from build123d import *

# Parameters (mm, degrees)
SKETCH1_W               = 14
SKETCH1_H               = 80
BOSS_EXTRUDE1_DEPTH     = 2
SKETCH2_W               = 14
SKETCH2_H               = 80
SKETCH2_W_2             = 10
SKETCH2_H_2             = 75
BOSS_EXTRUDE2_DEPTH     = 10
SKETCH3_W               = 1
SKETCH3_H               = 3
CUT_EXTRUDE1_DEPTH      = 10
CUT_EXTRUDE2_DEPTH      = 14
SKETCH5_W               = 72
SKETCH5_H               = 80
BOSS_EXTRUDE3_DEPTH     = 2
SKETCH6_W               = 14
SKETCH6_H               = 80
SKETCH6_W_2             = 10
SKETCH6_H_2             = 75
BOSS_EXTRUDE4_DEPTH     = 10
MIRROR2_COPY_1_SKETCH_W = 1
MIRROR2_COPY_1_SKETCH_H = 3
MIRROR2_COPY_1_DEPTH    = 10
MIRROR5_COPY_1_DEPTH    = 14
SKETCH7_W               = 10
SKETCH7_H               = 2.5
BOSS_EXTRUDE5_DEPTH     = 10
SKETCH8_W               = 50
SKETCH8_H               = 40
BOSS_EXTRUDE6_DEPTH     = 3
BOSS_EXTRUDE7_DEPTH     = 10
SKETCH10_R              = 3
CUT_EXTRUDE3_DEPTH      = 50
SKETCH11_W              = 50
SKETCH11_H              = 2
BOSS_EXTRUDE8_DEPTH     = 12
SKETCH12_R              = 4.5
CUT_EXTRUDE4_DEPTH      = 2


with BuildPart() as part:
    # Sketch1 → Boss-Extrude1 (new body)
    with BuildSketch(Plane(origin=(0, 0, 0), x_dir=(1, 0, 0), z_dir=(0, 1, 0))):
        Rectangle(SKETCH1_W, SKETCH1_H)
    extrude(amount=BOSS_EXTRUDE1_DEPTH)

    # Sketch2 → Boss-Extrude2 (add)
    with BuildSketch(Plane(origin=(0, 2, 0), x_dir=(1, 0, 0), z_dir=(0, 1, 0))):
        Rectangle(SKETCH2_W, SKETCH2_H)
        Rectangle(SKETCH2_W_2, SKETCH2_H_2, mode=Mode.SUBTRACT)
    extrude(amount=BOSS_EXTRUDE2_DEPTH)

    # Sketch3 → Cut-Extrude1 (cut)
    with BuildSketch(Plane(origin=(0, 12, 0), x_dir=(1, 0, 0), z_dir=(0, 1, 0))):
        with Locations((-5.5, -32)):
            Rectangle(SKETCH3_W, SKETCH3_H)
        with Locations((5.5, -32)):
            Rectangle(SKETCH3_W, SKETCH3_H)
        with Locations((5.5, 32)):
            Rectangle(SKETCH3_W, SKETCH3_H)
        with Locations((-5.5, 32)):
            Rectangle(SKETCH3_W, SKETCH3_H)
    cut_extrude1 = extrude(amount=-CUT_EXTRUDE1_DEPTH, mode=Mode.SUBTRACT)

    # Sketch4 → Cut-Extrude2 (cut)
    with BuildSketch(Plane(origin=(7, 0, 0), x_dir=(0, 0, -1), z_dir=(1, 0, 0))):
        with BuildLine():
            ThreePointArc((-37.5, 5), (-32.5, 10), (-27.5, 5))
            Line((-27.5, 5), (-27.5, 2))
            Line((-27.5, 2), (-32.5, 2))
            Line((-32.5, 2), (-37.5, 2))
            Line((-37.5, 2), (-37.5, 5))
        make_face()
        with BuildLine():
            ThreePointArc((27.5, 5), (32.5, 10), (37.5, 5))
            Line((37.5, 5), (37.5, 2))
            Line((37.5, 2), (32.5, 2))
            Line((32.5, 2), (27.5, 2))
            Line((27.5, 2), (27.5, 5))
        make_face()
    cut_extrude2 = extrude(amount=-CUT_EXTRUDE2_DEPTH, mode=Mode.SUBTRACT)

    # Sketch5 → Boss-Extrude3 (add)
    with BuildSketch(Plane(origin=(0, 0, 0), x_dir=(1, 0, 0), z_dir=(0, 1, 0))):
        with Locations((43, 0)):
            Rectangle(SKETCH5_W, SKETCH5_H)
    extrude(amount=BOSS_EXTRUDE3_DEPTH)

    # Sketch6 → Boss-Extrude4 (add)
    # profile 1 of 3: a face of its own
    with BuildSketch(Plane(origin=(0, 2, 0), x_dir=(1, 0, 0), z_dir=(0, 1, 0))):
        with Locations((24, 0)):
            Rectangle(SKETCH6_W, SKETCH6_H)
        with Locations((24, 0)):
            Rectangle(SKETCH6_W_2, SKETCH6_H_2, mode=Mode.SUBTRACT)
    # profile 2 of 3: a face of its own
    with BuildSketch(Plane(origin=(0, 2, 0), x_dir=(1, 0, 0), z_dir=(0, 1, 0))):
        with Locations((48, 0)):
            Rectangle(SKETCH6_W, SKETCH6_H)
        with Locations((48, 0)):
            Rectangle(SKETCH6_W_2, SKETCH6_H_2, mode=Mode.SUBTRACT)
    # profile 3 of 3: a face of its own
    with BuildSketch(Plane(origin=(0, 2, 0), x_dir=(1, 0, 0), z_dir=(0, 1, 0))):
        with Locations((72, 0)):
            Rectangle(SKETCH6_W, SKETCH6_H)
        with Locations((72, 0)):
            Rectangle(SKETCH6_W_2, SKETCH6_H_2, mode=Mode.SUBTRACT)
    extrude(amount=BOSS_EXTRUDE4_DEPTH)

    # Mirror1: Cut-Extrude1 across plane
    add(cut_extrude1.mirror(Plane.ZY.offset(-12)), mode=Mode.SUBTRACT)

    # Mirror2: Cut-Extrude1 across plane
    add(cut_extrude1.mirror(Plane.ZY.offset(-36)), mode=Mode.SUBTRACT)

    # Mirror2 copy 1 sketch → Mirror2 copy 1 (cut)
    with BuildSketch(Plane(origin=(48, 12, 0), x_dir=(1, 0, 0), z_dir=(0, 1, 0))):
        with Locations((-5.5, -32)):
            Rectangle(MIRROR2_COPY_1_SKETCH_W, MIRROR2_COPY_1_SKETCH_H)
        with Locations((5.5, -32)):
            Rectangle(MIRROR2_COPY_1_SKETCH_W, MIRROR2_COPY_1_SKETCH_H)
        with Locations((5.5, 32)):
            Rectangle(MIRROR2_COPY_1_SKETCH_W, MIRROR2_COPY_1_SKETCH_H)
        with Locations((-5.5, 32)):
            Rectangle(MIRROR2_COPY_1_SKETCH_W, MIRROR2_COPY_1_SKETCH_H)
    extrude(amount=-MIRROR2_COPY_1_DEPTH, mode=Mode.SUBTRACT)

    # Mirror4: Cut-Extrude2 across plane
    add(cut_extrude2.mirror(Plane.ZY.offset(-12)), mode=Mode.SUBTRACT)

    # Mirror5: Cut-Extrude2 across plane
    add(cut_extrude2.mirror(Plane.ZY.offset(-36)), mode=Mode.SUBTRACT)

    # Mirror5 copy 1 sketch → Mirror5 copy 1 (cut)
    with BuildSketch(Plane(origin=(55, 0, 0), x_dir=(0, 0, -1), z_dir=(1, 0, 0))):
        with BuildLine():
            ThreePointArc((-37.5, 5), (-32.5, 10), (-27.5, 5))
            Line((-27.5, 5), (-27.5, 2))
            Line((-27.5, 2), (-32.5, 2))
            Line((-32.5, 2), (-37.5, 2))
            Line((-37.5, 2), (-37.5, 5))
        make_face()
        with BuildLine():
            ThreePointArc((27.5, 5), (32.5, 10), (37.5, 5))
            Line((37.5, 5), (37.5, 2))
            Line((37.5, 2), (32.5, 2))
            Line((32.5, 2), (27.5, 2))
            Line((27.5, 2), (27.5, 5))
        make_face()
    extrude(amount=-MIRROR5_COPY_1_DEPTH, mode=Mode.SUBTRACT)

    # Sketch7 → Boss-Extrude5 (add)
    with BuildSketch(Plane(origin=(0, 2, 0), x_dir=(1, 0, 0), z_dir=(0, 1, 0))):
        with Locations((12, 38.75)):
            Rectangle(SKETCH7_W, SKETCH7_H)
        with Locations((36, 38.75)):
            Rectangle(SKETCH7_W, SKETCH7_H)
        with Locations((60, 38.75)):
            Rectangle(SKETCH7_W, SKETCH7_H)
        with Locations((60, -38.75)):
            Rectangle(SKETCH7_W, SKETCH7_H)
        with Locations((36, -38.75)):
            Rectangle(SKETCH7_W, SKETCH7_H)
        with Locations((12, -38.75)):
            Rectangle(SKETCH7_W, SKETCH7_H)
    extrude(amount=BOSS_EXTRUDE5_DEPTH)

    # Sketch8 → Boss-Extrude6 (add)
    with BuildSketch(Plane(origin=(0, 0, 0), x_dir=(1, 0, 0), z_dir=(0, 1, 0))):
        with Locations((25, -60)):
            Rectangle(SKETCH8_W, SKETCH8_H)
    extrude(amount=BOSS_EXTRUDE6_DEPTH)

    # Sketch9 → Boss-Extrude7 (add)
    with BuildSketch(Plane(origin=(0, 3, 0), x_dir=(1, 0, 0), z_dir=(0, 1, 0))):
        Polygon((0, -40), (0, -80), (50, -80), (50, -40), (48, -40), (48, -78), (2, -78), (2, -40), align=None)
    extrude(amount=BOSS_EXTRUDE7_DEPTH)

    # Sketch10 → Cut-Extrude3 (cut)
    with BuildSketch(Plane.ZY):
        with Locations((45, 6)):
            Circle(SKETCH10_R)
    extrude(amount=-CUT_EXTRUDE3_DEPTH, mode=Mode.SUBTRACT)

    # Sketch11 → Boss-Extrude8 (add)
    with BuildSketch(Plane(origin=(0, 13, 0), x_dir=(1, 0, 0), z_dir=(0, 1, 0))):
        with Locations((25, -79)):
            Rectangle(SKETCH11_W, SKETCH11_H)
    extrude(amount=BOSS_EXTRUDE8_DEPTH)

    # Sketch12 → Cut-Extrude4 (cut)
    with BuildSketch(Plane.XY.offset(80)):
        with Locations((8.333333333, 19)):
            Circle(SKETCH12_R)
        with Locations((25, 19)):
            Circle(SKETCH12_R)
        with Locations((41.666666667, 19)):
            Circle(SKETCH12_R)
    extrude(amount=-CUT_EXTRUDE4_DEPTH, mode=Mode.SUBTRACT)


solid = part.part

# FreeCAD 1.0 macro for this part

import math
import FreeCAD as App
import Part
import Sketcher

V = App.Vector

doc = App.newDocument("Part")
body = doc.addObject("PartDesign::Body", "Body")

sketch1 = body.newObject("Sketcher::SketchObject", "Sketch")
sketch1.AttachmentSupport = (doc.getObject("XZ_Plane"), [""])
sketch1.MapMode = "FlatFace"
sketch1.addGeometry([
    Part.LineSegment(V(-7, -40, 0), V(-7, 40, 0)),
    Part.LineSegment(V(-7, 40, 0), V(7, 40, 0)),
    Part.LineSegment(V(7, 40, 0), V(7, -40, 0)),
    Part.LineSegment(V(7, -40, 0), V(-7, -40, 0)),
], False)
sketch1.addConstraint([
    Sketcher.Constraint("Coincident", 0, 2, 1, 1),
    Sketcher.Constraint("Coincident", 1, 2, 2, 1),
    Sketcher.Constraint("Coincident", 2, 2, 3, 1),
    Sketcher.Constraint("Coincident", 3, 2, 0, 1),
    Sketcher.Constraint("Vertical", 0),
    Sketcher.Constraint("Horizontal", 1),
    Sketcher.Constraint("Vertical", 2),
    Sketcher.Constraint("Horizontal", 3),
    Sketcher.Constraint("Symmetric", 0, 2, 2, 2, -1, 1),
    Sketcher.Constraint("DistanceX", 1, 1, 1, 2, 14.0),
    Sketcher.Constraint("DistanceY", 0, 1, 0, 2, 80.0),
])
pad1 = body.newObject("PartDesign::Pad", "Pad")
pad1.Profile = sketch1
pad1.Length = 2
pad1.Reversed = True

sketch2 = body.newObject("Sketcher::SketchObject", "Sketch001")
sketch2.AttachmentSupport = (doc.getObject("XZ_Plane"), [""])
sketch2.MapMode = "FlatFace"
sketch2.AttachmentOffset = App.Placement(V(0, 0, -2), App.Rotation())
sketch2.addGeometry([
    Part.LineSegment(V(-7, -40, 0), V(-7, 40, 0)),
    Part.LineSegment(V(-7, 40, 0), V(7, 40, 0)),
    Part.LineSegment(V(7, 40, 0), V(7, -40, 0)),
    Part.LineSegment(V(7, -40, 0), V(-7, -40, 0)),
    Part.LineSegment(V(5, 38, 0), V(-5, 38, 0)),
    Part.LineSegment(V(-5, 38, 0), V(-5, -38, 0)),
    Part.LineSegment(V(-5, -38, 0), V(5, -38, 0)),
    Part.LineSegment(V(5, -38, 0), V(5, 38, 0)),
], False)
sketch2.addConstraint([
    Sketcher.Constraint("Coincident", 0, 2, 1, 1),
    Sketcher.Constraint("Coincident", 1, 2, 2, 1),
    Sketcher.Constraint("Coincident", 2, 2, 3, 1),
    Sketcher.Constraint("Coincident", 3, 2, 0, 1),
    Sketcher.Constraint("Coincident", 4, 2, 5, 1),
    Sketcher.Constraint("Coincident", 5, 2, 6, 1),
    Sketcher.Constraint("Coincident", 6, 2, 7, 1),
    Sketcher.Constraint("Coincident", 7, 2, 4, 1),
    Sketcher.Constraint("Vertical", 0),
    Sketcher.Constraint("Horizontal", 1),
    Sketcher.Constraint("Vertical", 2),
    Sketcher.Constraint("Horizontal", 3),
    Sketcher.Constraint("Horizontal", 4),
    Sketcher.Constraint("Vertical", 5),
    Sketcher.Constraint("Horizontal", 6),
    Sketcher.Constraint("Vertical", 7),
    Sketcher.Constraint("Symmetric", 0, 2, 2, 2, -1, 1),
    Sketcher.Constraint("Symmetric", 4, 2, 6, 2, -1, 1),
    Sketcher.Constraint("DistanceX", 1, 1, 1, 2, 14.0),
    Sketcher.Constraint("DistanceX", 4, 2, 4, 1, 10.0),
    Sketcher.Constraint("DistanceY", 0, 1, 0, 2, 80.0),
    Sketcher.Constraint("DistanceY", 5, 2, 5, 1, 75.0),
])
pad2 = body.newObject("PartDesign::Pad", "Pad001")
pad2.Profile = sketch2
pad2.Length = 10
pad2.Reversed = True

sketch3 = body.newObject("Sketcher::SketchObject", "Sketch002")
sketch3.AttachmentSupport = (doc.getObject("XZ_Plane"), [""])
sketch3.MapMode = "FlatFace"
sketch3.AttachmentOffset = App.Placement(V(0, 0, -12), App.Rotation())
sketch3.addGeometry([
    Part.LineSegment(V(-6, 30.5, 0), V(-6, 33.5, 0)),
    Part.LineSegment(V(-6, 33.5, 0), V(-5, 33.5, 0)),
    Part.LineSegment(V(-5, 33.5, 0), V(-5, 30.5, 0)),
    Part.LineSegment(V(-5, 30.5, 0), V(-6, 30.5, 0)),
    Part.LineSegment(V(5, 30.5, 0), V(5, 33.5, 0)),
    Part.LineSegment(V(5, 33.5, 0), V(6, 33.5, 0)),
    Part.LineSegment(V(6, 33.5, 0), V(6, 30.5, 0)),
    Part.LineSegment(V(6, 30.5, 0), V(5, 30.5, 0)),
    Part.LineSegment(V(5, -33.5, 0), V(5, -30.5, 0)),
    Part.LineSegment(V(5, -30.5, 0), V(6, -30.5, 0)),
    Part.LineSegment(V(6, -30.5, 0), V(6, -33.5, 0)),
    Part.LineSegment(V(6, -33.5, 0), V(5, -33.5, 0)),
    Part.LineSegment(V(-6, -33.5, 0), V(-6, -30.5, 0)),
    Part.LineSegment(V(-6, -30.5, 0), V(-5, -30.5, 0)),
    Part.LineSegment(V(-5, -30.5, 0), V(-5, -33.5, 0)),
    Part.LineSegment(V(-5, -33.5, 0), V(-6, -33.5, 0)),
], False)
sketch3.addConstraint([
    Sketcher.Constraint("Coincident", 0, 2, 1, 1),
    Sketcher.Constraint("Coincident", 1, 2, 2, 1),
    Sketcher.Constraint("Coincident", 2, 2, 3, 1),
    Sketcher.Constraint("Coincident", 3, 2, 0, 1),
    Sketcher.Constraint("Coincident", 4, 2, 5, 1),
    Sketcher.Constraint("Coincident", 5, 2, 6, 1),
    Sketcher.Constraint("Coincident", 6, 2, 7, 1),
    Sketcher.Constraint("Coincident", 7, 2, 4, 1),
    Sketcher.Constraint("Coincident", 8, 2, 9, 1),
    Sketcher.Constraint("Coincident", 9, 2, 10, 1),
    Sketcher.Constraint("Coincident", 10, 2, 11, 1),
    Sketcher.Constraint("Coincident", 11, 2, 8, 1),
    Sketcher.Constraint("Coincident", 12, 2, 13, 1),
    Sketcher.Constraint("Coincident", 13, 2, 14, 1),
    Sketcher.Constraint("Coincident", 14, 2, 15, 1),
    Sketcher.Constraint("Coincident", 15, 2, 12, 1),
    Sketcher.Constraint("Vertical", 0),
    Sketcher.Constraint("Horizontal", 1),
    Sketcher.Constraint("Vertical", 2),
    Sketcher.Constraint("Horizontal", 3),
    Sketcher.Constraint("Vertical", 4),
    Sketcher.Constraint("Horizontal", 5),
    Sketcher.Constraint("Vertical", 6),
    Sketcher.Constraint("Horizontal", 7),
    Sketcher.Constraint("Vertical", 8),
    Sketcher.Constraint("Horizontal", 9),
    Sketcher.Constraint("Vertical", 10),
    Sketcher.Constraint("Horizontal", 11),
    Sketcher.Constraint("Vertical", 12),
    Sketcher.Constraint("Horizontal", 13),
    Sketcher.Constraint("Vertical", 14),
    Sketcher.Constraint("Horizontal", 15),
    Sketcher.Constraint("Symmetric", 2, 2, 8, 2, -1, 1),
    Sketcher.Constraint("Symmetric", 0, 2, 10, 2, -1, 1),
    Sketcher.Constraint("Symmetric", 6, 2, 12, 2, -1, 1),
    Sketcher.Constraint("Symmetric", 4, 2, 14, 2, -1, 1),
    Sketcher.Constraint("Symmetric", 1, 2, 4, 2, -2),
    Sketcher.Constraint("Symmetric", 3, 2, 6, 2, -2),
    Sketcher.Constraint("DistanceX", 1, 1, 1, 2, 1.0),
    Sketcher.Constraint("DistanceY", 0, 1, 0, 2, 3.0),
    Sketcher.Constraint("DistanceX", 0, 2, -1, 1, 6.0),
    Sketcher.Constraint("DistanceY", 8, 2, 7, 2, 61.0),
])
pocket1 = body.newObject("PartDesign::Pocket", "Pocket")
pocket1.Profile = sketch3
pocket1.Length = 10
pocket1.Reversed = True

sketch4 = body.newObject("Sketcher::SketchObject", "Sketch003")
sketch4.AttachmentSupport = (doc.getObject("YZ_Plane"), [""])
sketch4.MapMode = "FlatFace"
sketch4.AttachmentOffset = App.Placement(V(0, 0, 7), App.Rotation())
sketch4.addGeometry([
    Part.ArcOfCircle(Part.Circle(V(5, 32.5, 0), V(0, 0, 1), 5), math.radians(-90), math.radians(90)),
    Part.LineSegment(V(5, 37.5, 0), V(2, 37.5, 0)),
    Part.LineSegment(V(2, 37.5, 0), V(2, 27.5, 0)),
    Part.LineSegment(V(2, 27.5, 0), V(5, 27.5, 0)),
    Part.ArcOfCircle(Part.Circle(V(5, -32.5, 0), V(0, 0, 1), 5), math.radians(-90), math.radians(90)),
    Part.LineSegment(V(5, -27.5, 0), V(2, -27.5, 0)),
    Part.LineSegment(V(2, -27.5, 0), V(2, -37.5, 0)),
    Part.LineSegment(V(2, -37.5, 0), V(5, -37.5, 0)),
], False)
sketch4.addConstraint([
    Sketcher.Constraint("Tangent", 0, 2, 1, 1),
    Sketcher.Constraint("Coincident", 1, 2, 2, 1),
    Sketcher.Constraint("Coincident", 2, 2, 3, 1),
    Sketcher.Constraint("Tangent", 3, 2, 0, 1),
    Sketcher.Constraint("Tangent", 4, 2, 5, 1),
    Sketcher.Constraint("Coincident", 5, 2, 6, 1),
    Sketcher.Constraint("Coincident", 6, 2, 7, 1),
    Sketcher.Constraint("Tangent", 7, 2, 4, 1),
    Sketcher.Constraint("Horizontal", 1),
    Sketcher.Constraint("Vertical", 2),
    Sketcher.Constraint("Horizontal", 3),
    Sketcher.Constraint("Horizontal", 5),
    Sketcher.Constraint("Vertical", 6),
    Sketcher.Constraint("Horizontal", 7),
    Sketcher.Constraint("Equal", 0, 4),
    Sketcher.Constraint("Symmetric", 0, 3, 4, 3, -1),
    Sketcher.Constraint("Vertical", 2, 2, 5, 2),
    Sketcher.Constraint("Radius", 0, 5.0),
    Sketcher.Constraint("DistanceX", 1, 2, 1, 1, 3.0),
    Sketcher.Constraint("DistanceX", -1, 1, 0, 3, 5.0),
    Sketcher.Constraint("DistanceY", 4, 3, 0, 3, 65.0),
])
pocket2 = body.newObject("PartDesign::Pocket", "Pocket001")
pocket2.Profile = sketch4
pocket2.Length = 14

sketch5 = body.newObject("Sketcher::SketchObject", "Sketch004")
sketch5.AttachmentSupport = (doc.getObject("XZ_Plane"), [""])
sketch5.MapMode = "FlatFace"
sketch5.addGeometry([
    Part.LineSegment(V(7, -40, 0), V(7, 40, 0)),
    Part.LineSegment(V(7, 40, 0), V(79, 40, 0)),
    Part.LineSegment(V(79, 40, 0), V(79, -40, 0)),
    Part.LineSegment(V(79, -40, 0), V(7, -40, 0)),
], False)
sketch5.addConstraint([
    Sketcher.Constraint("Coincident", 0, 2, 1, 1),
    Sketcher.Constraint("Coincident", 1, 2, 2, 1),
    Sketcher.Constraint("Coincident", 2, 2, 3, 1),
    Sketcher.Constraint("Coincident", 3, 2, 0, 1),
    Sketcher.Constraint("Vertical", 0),
    Sketcher.Constraint("Horizontal", 1),
    Sketcher.Constraint("Vertical", 2),
    Sketcher.Constraint("Horizontal", 3),
    Sketcher.Constraint("DistanceX", 1, 1, 1, 2, 72.0),
    Sketcher.Constraint("DistanceY", 0, 1, 0, 2, 80.0),
    Sketcher.Constraint("DistanceX", -1, 1, 0, 2, 7.0),
    Sketcher.Constraint("DistanceY", -1, 1, 0, 2, 40.0),
])
pad3 = body.newObject("PartDesign::Pad", "Pad002")
pad3.Profile = sketch5
pad3.Length = 2
pad3.Reversed = True

sketch6 = body.newObject("Sketcher::SketchObject", "Sketch005")
sketch6.AttachmentSupport = (doc.getObject("XZ_Plane"), [""])
sketch6.MapMode = "FlatFace"
sketch6.AttachmentOffset = App.Placement(V(0, 0, -2), App.Rotation())
sketch6.addGeometry([
    Part.LineSegment(V(17, -40, 0), V(17, 40, 0)),
    Part.LineSegment(V(17, 40, 0), V(31, 40, 0)),
    Part.LineSegment(V(31, 40, 0), V(31, -40, 0)),
    Part.LineSegment(V(31, -40, 0), V(17, -40, 0)),
    Part.LineSegment(V(29, 38, 0), V(19, 38, 0)),
    Part.LineSegment(V(19, 38, 0), V(19, -38, 0)),
    Part.LineSegment(V(19, -38, 0), V(29, -38, 0)),
    Part.LineSegment(V(29, -38, 0), V(29, 38, 0)),
    Part.LineSegment(V(41, -40, 0), V(41, 40, 0)),
    Part.LineSegment(V(41, 40, 0), V(55, 40, 0)),
    Part.LineSegment(V(55, 40, 0), V(55, -40, 0)),
    Part.LineSegment(V(55, -40, 0), V(41, -40, 0)),
    Part.LineSegment(V(53, 38, 0), V(43, 38, 0)),
    Part.LineSegment(V(43, 38, 0), V(43, -38, 0)),
    Part.LineSegment(V(43, -38, 0), V(53, -38, 0)),
    Part.LineSegment(V(53, -38, 0), V(53, 38, 0)),
    Part.LineSegment(V(65, -40, 0), V(65, 40, 0)),
    Part.LineSegment(V(65, 40, 0), V(79, 40, 0)),
    Part.LineSegment(V(79, 40, 0), V(79, -40, 0)),
    Part.LineSegment(V(79, -40, 0), V(65, -40, 0)),
    Part.LineSegment(V(77, 38, 0), V(67, 38, 0)),
    Part.LineSegment(V(67, 38, 0), V(67, -38, 0)),
    Part.LineSegment(V(67, -38, 0), V(77, -38, 0)),
    Part.LineSegment(V(77, -38, 0), V(77, 38, 0)),
], False)
sketch6.addConstraint([
    Sketcher.Constraint("Coincident", 0, 2, 1, 1),
    Sketcher.Constraint("Coincident", 1, 2, 2, 1),
    Sketcher.Constraint("Coincident", 2, 2, 3, 1),
    Sketcher.Constraint("Coincident", 3, 2, 0, 1),
    Sketcher.Constraint("Coincident", 4, 2, 5, 1),
    Sketcher.Constraint("Coincident", 5, 2, 6, 1),
    Sketcher.Constraint("Coincident", 6, 2, 7, 1),
    Sketcher.Constraint("Coincident", 7, 2, 4, 1),
    Sketcher.Constraint("Coincident", 8, 2, 9, 1),
    Sketcher.Constraint("Coincident", 9, 2, 10, 1),
    Sketcher.Constraint("Coincident", 10, 2, 11, 1),
    Sketcher.Constraint("Coincident", 11, 2, 8, 1),
    Sketcher.Constraint("Coincident", 12, 2, 13, 1),
    Sketcher.Constraint("Coincident", 13, 2, 14, 1),
    Sketcher.Constraint("Coincident", 14, 2, 15, 1),
    Sketcher.Constraint("Coincident", 15, 2, 12, 1),
    Sketcher.Constraint("Coincident", 16, 2, 17, 1),
    Sketcher.Constraint("Coincident", 17, 2, 18, 1),
    Sketcher.Constraint("Coincident", 18, 2, 19, 1),
    Sketcher.Constraint("Coincident", 19, 2, 16, 1),
    Sketcher.Constraint("Coincident", 20, 2, 21, 1),
    Sketcher.Constraint("Coincident", 21, 2, 22, 1),
    Sketcher.Constraint("Coincident", 22, 2, 23, 1),
    Sketcher.Constraint("Coincident", 23, 2, 20, 1),
    Sketcher.Constraint("Vertical", 0),
    Sketcher.Constraint("Horizontal", 1),
    Sketcher.Constraint("Vertical", 2),
    Sketcher.Constraint("Horizontal", 3),
    Sketcher.Constraint("Horizontal", 4),
    Sketcher.Constraint("Vertical", 5),
    Sketcher.Constraint("Horizontal", 6),
    Sketcher.Constraint("Vertical", 7),
    Sketcher.Constraint("Vertical", 8),
    Sketcher.Constraint("Horizontal", 9),
    Sketcher.Constraint("Vertical", 10),
    Sketcher.Constraint("Horizontal", 11),
    Sketcher.Constraint("Horizontal", 12),
    Sketcher.Constraint("Vertical", 13),
    Sketcher.Constraint("Horizontal", 14),
    Sketcher.Constraint("Vertical", 15),
    Sketcher.Constraint("Vertical", 16),
    Sketcher.Constraint("Horizontal", 17),
    Sketcher.Constraint("Vertical", 18),
    Sketcher.Constraint("Horizontal", 19),
    Sketcher.Constraint("Horizontal", 20),
    Sketcher.Constraint("Vertical", 21),
    Sketcher.Constraint("Horizontal", 22),
    Sketcher.Constraint("Vertical", 23),
    Sketcher.Constraint("Horizontal", 1, 2, 8, 2),
    Sketcher.Constraint("Horizontal", 3, 2, 10, 2),
    Sketcher.Constraint("Horizontal", 7, 2, 12, 2),
    Sketcher.Constraint("Horizontal", 6, 2, 13, 2),
    Sketcher.Constraint("Horizontal", 9, 2, 16, 2),
    Sketcher.Constraint("Horizontal", 11, 2, 18, 2),
    Sketcher.Constraint("Horizontal", 15, 2, 20, 2),
    Sketcher.Constraint("Horizontal", 14, 2, 21, 2),
    Sketcher.Constraint("Equal", 3, 9),
    Sketcher.Constraint("Equal", 6, 12),
    Sketcher.Constraint("Equal", 11, 17),
    Sketcher.Constraint("Equal", 14, 20),
    Sketcher.Constraint("DistanceX", 1, 1, 1, 2, 14.0),
    Sketcher.Constraint("DistanceX", 4, 2, 4, 1, 10.0),
    Sketcher.Constraint("DistanceY", 0, 1, 0, 2, 80.0),
    Sketcher.Constraint("DistanceY", 5, 2, 5, 1, 75.0),
    Sketcher.Constraint("DistanceX", -1, 1, 0, 2, 17.0),
    Sketcher.Constraint("DistanceY", -1, 1, 0, 2, 40.0),
    Sketcher.Constraint("DistanceX", -1, 1, 4, 2, 19.0),
    Sketcher.Constraint("DistanceX", -1, 1, 8, 2, 41.0),
    Sketcher.Constraint("DistanceX", -1, 1, 12, 2, 43.0),
    Sketcher.Constraint("DistanceX", -1, 1, 16, 2, 65.0),
    Sketcher.Constraint("DistanceX", -1, 1, 20, 2, 67.0),
    Sketcher.Constraint("DistanceY", -1, 1, 4, 2, 37.5),
])
pad4 = body.newObject("PartDesign::Pad", "Pad003")
pad4.Profile = sketch6
pad4.Length = 10
pad4.Reversed = True
doc.recompute()

datumplane = body.newObject("PartDesign::Plane", "DatumPlane")
datumplane.AttachmentSupport = (doc.getObject("YZ_Plane"), [""])
datumplane.MapMode = "FlatFace"
datumplane.AttachmentOffset = App.Placement(V(0, 0, 12), App.Rotation())
mirrored = body.newObject("PartDesign::Mirrored", "Mirrored")
mirrored.Originals = [pocket1]
mirrored.MirrorPlane = (datumplane, [""])
body.Tip = mirrored
doc.recompute()

datumplane2 = body.newObject("PartDesign::Plane", "DatumPlane001")
datumplane2.AttachmentSupport = (doc.getObject("YZ_Plane"), [""])
datumplane2.MapMode = "FlatFace"
datumplane2.AttachmentOffset = App.Placement(V(0, 0, 36), App.Rotation())
mirrored2 = body.newObject("PartDesign::Mirrored", "Mirrored001")
mirrored2.Originals = [pocket1]
mirrored2.MirrorPlane = (datumplane2, [""])
body.Tip = mirrored2

sketch7 = body.newObject("Sketcher::SketchObject", "Sketch006")
sketch7.AttachmentSupport = (doc.getObject("XZ_Plane"), [""])
sketch7.MapMode = "FlatFace"
sketch7.AttachmentOffset = App.Placement(V(0, 0, -12), App.Rotation())
sketch7.addGeometry([
    Part.LineSegment(V(42, 30.5, 0), V(42, 33.5, 0)),
    Part.LineSegment(V(42, 33.5, 0), V(43, 33.5, 0)),
    Part.LineSegment(V(43, 33.5, 0), V(43, 30.5, 0)),
    Part.LineSegment(V(43, 30.5, 0), V(42, 30.5, 0)),
    Part.LineSegment(V(53, 30.5, 0), V(53, 33.5, 0)),
    Part.LineSegment(V(53, 33.5, 0), V(54, 33.5, 0)),
    Part.LineSegment(V(54, 33.5, 0), V(54, 30.5, 0)),
    Part.LineSegment(V(54, 30.5, 0), V(53, 30.5, 0)),
    Part.LineSegment(V(53, -33.5, 0), V(53, -30.5, 0)),
    Part.LineSegment(V(53, -30.5, 0), V(54, -30.5, 0)),
    Part.LineSegment(V(54, -30.5, 0), V(54, -33.5, 0)),
    Part.LineSegment(V(54, -33.5, 0), V(53, -33.5, 0)),
    Part.LineSegment(V(42, -33.5, 0), V(42, -30.5, 0)),
    Part.LineSegment(V(42, -30.5, 0), V(43, -30.5, 0)),
    Part.LineSegment(V(43, -30.5, 0), V(43, -33.5, 0)),
    Part.LineSegment(V(43, -33.5, 0), V(42, -33.5, 0)),
], False)
sketch7.addConstraint([
    Sketcher.Constraint("Coincident", 0, 2, 1, 1),
    Sketcher.Constraint("Coincident", 1, 2, 2, 1),
    Sketcher.Constraint("Coincident", 2, 2, 3, 1),
    Sketcher.Constraint("Coincident", 3, 2, 0, 1),
    Sketcher.Constraint("Coincident", 4, 2, 5, 1),
    Sketcher.Constraint("Coincident", 5, 2, 6, 1),
    Sketcher.Constraint("Coincident", 6, 2, 7, 1),
    Sketcher.Constraint("Coincident", 7, 2, 4, 1),
    Sketcher.Constraint("Coincident", 8, 2, 9, 1),
    Sketcher.Constraint("Coincident", 9, 2, 10, 1),
    Sketcher.Constraint("Coincident", 10, 2, 11, 1),
    Sketcher.Constraint("Coincident", 11, 2, 8, 1),
    Sketcher.Constraint("Coincident", 12, 2, 13, 1),
    Sketcher.Constraint("Coincident", 13, 2, 14, 1),
    Sketcher.Constraint("Coincident", 14, 2, 15, 1),
    Sketcher.Constraint("Coincident", 15, 2, 12, 1),
    Sketcher.Constraint("Vertical", 0),
    Sketcher.Constraint("Horizontal", 1),
    Sketcher.Constraint("Vertical", 2),
    Sketcher.Constraint("Horizontal", 3),
    Sketcher.Constraint("Vertical", 4),
    Sketcher.Constraint("Horizontal", 5),
    Sketcher.Constraint("Vertical", 6),
    Sketcher.Constraint("Horizontal", 7),
    Sketcher.Constraint("Vertical", 8),
    Sketcher.Constraint("Horizontal", 9),
    Sketcher.Constraint("Vertical", 10),
    Sketcher.Constraint("Horizontal", 11),
    Sketcher.Constraint("Vertical", 12),
    Sketcher.Constraint("Horizontal", 13),
    Sketcher.Constraint("Vertical", 14),
    Sketcher.Constraint("Horizontal", 15),
    Sketcher.Constraint("Symmetric", 7, 2, 8, 2, -1),
    Sketcher.Constraint("Symmetric", 5, 2, 10, 2, -1),
    Sketcher.Constraint("Symmetric", 3, 2, 12, 2, -1),
    Sketcher.Constraint("Symmetric", 1, 2, 14, 2, -1),
    Sketcher.Constraint("Horizontal", 1, 2, 4, 2),
    Sketcher.Constraint("Horizontal", 3, 2, 6, 2),
    Sketcher.Constraint("Equal", 3, 5),
    Sketcher.Constraint("DistanceX", 1, 1, 1, 2, 1.0),
    Sketcher.Constraint("DistanceY", 0, 1, 0, 2, 3.0),
    Sketcher.Constraint("DistanceX", -1, 1, 0, 2, 42.0),
    Sketcher.Constraint("DistanceX", -1, 1, 4, 2, 53.0),
    Sketcher.Constraint("DistanceY", 8, 2, 7, 2, 61.0),
])
pocket3 = body.newObject("PartDesign::Pocket", "Pocket002")
pocket3.Profile = sketch7
pocket3.Length = 10
pocket3.Reversed = True
doc.recompute()

datumplane3 = body.newObject("PartDesign::Plane", "DatumPlane002")
datumplane3.AttachmentSupport = (doc.getObject("YZ_Plane"), [""])
datumplane3.MapMode = "FlatFace"
datumplane3.AttachmentOffset = App.Placement(V(0, 0, 12), App.Rotation())
mirrored3 = body.newObject("PartDesign::Mirrored", "Mirrored002")
mirrored3.Originals = [pocket2]
mirrored3.MirrorPlane = (datumplane3, [""])
body.Tip = mirrored3
doc.recompute()

datumplane4 = body.newObject("PartDesign::Plane", "DatumPlane003")
datumplane4.AttachmentSupport = (doc.getObject("YZ_Plane"), [""])
datumplane4.MapMode = "FlatFace"
datumplane4.AttachmentOffset = App.Placement(V(0, 0, 36), App.Rotation())
mirrored4 = body.newObject("PartDesign::Mirrored", "Mirrored003")
mirrored4.Originals = [pocket2]
mirrored4.MirrorPlane = (datumplane4, [""])
body.Tip = mirrored4

sketch8 = body.newObject("Sketcher::SketchObject", "Sketch007")
sketch8.AttachmentSupport = (doc.getObject("YZ_Plane"), [""])
sketch8.MapMode = "FlatFace"
sketch8.AttachmentOffset = App.Placement(V(0, 0, 55), App.Rotation())
sketch8.addGeometry([
    Part.ArcOfCircle(Part.Circle(V(5, 32.5, 0), V(0, 0, 1), 5), math.radians(-90), math.radians(90)),
    Part.LineSegment(V(5, 37.5, 0), V(2, 37.5, 0)),
    Part.LineSegment(V(2, 37.5, 0), V(2, 27.5, 0)),
    Part.LineSegment(V(2, 27.5, 0), V(5, 27.5, 0)),
    Part.ArcOfCircle(Part.Circle(V(5, -32.5, 0), V(0, 0, 1), 5), math.radians(-90), math.radians(90)),
    Part.LineSegment(V(5, -27.5, 0), V(2, -27.5, 0)),
    Part.LineSegment(V(2, -27.5, 0), V(2, -37.5, 0)),
    Part.LineSegment(V(2, -37.5, 0), V(5, -37.5, 0)),
], False)
sketch8.addConstraint([
    Sketcher.Constraint("Tangent", 0, 2, 1, 1),
    Sketcher.Constraint("Coincident", 1, 2, 2, 1),
    Sketcher.Constraint("Coincident", 2, 2, 3, 1),
    Sketcher.Constraint("Tangent", 3, 2, 0, 1),
    Sketcher.Constraint("Tangent", 4, 2, 5, 1),
    Sketcher.Constraint("Coincident", 5, 2, 6, 1),
    Sketcher.Constraint("Coincident", 6, 2, 7, 1),
    Sketcher.Constraint("Tangent", 7, 2, 4, 1),
    Sketcher.Constraint("Horizontal", 1),
    Sketcher.Constraint("Vertical", 2),
    Sketcher.Constraint("Horizontal", 3),
    Sketcher.Constraint("Horizontal", 5),
    Sketcher.Constraint("Vertical", 6),
    Sketcher.Constraint("Horizontal", 7),
    Sketcher.Constraint("Equal", 0, 4),
    Sketcher.Constraint("Symmetric", 0, 3, 4, 3, -1),
    Sketcher.Constraint("Vertical", 2, 2, 5, 2),
    Sketcher.Constraint("Radius", 0, 5.0),
    Sketcher.Constraint("DistanceX", 1, 2, 1, 1, 3.0),
    Sketcher.Constraint("DistanceX", -1, 1, 0, 3, 5.0),
    Sketcher.Constraint("DistanceY", 4, 3, 0, 3, 65.0),
])
pocket4 = body.newObject("PartDesign::Pocket", "Pocket003")
pocket4.Profile = sketch8
pocket4.Length = 14

sketch9 = body.newObject("Sketcher::SketchObject", "Sketch008")
sketch9.AttachmentSupport = (doc.getObject("XZ_Plane"), [""])
sketch9.MapMode = "FlatFace"
sketch9.AttachmentOffset = App.Placement(V(0, 0, -2), App.Rotation())
sketch9.addGeometry([
    Part.LineSegment(V(7, -40, 0), V(7, -37.5, 0)),
    Part.LineSegment(V(7, -37.5, 0), V(17, -37.5, 0)),
    Part.LineSegment(V(17, -37.5, 0), V(17, -40, 0)),
    Part.LineSegment(V(17, -40, 0), V(7, -40, 0)),
    Part.LineSegment(V(31, -40, 0), V(31, -37.5, 0)),
    Part.LineSegment(V(31, -37.5, 0), V(41, -37.5, 0)),
    Part.LineSegment(V(41, -37.5, 0), V(41, -40, 0)),
    Part.LineSegment(V(41, -40, 0), V(31, -40, 0)),
    Part.LineSegment(V(55, -40, 0), V(55, -37.5, 0)),
    Part.LineSegment(V(55, -37.5, 0), V(65, -37.5, 0)),
    Part.LineSegment(V(65, -37.5, 0), V(65, -40, 0)),
    Part.LineSegment(V(65, -40, 0), V(55, -40, 0)),
    Part.LineSegment(V(55, 37.5, 0), V(55, 40, 0)),
    Part.LineSegment(V(55, 40, 0), V(65, 40, 0)),
    Part.LineSegment(V(65, 40, 0), V(65, 37.5, 0)),
    Part.LineSegment(V(65, 37.5, 0), V(55, 37.5, 0)),
    Part.LineSegment(V(31, 37.5, 0), V(31, 40, 0)),
    Part.LineSegment(V(31, 40, 0), V(41, 40, 0)),
    Part.LineSegment(V(41, 40, 0), V(41, 37.5, 0)),
    Part.LineSegment(V(41, 37.5, 0), V(31, 37.5, 0)),
    Part.LineSegment(V(7, 37.5, 0), V(7, 40, 0)),
    Part.LineSegment(V(7, 40, 0), V(17, 40, 0)),
    Part.LineSegment(V(17, 40, 0), V(17, 37.5, 0)),
    Part.LineSegment(V(17, 37.5, 0), V(7, 37.5, 0)),
], False)
sketch9.addConstraint([
    Sketcher.Constraint("Coincident", 0, 2, 1, 1),
    Sketcher.Constraint("Coincident", 1, 2, 2, 1),
    Sketcher.Constraint("Coincident", 2, 2, 3, 1),
    Sketcher.Constraint("Coincident", 3, 2, 0, 1),
    Sketcher.Constraint("Coincident", 4, 2, 5, 1),
    Sketcher.Constraint("Coincident", 5, 2, 6, 1),
    Sketcher.Constraint("Coincident", 6, 2, 7, 1),
    Sketcher.Constraint("Coincident", 7, 2, 4, 1),
    Sketcher.Constraint("Coincident", 8, 2, 9, 1),
    Sketcher.Constraint("Coincident", 9, 2, 10, 1),
    Sketcher.Constraint("Coincident", 10, 2, 11, 1),
    Sketcher.Constraint("Coincident", 11, 2, 8, 1),
    Sketcher.Constraint("Coincident", 12, 2, 13, 1),
    Sketcher.Constraint("Coincident", 13, 2, 14, 1),
    Sketcher.Constraint("Coincident", 14, 2, 15, 1),
    Sketcher.Constraint("Coincident", 15, 2, 12, 1),
    Sketcher.Constraint("Coincident", 16, 2, 17, 1),
    Sketcher.Constraint("Coincident", 17, 2, 18, 1),
    Sketcher.Constraint("Coincident", 18, 2, 19, 1),
    Sketcher.Constraint("Coincident", 19, 2, 16, 1),
    Sketcher.Constraint("Coincident", 20, 2, 21, 1),
    Sketcher.Constraint("Coincident", 21, 2, 22, 1),
    Sketcher.Constraint("Coincident", 22, 2, 23, 1),
    Sketcher.Constraint("Coincident", 23, 2, 20, 1),
    Sketcher.Constraint("Vertical", 0),
    Sketcher.Constraint("Horizontal", 1),
    Sketcher.Constraint("Vertical", 2),
    Sketcher.Constraint("Horizontal", 3),
    Sketcher.Constraint("Vertical", 4),
    Sketcher.Constraint("Horizontal", 5),
    Sketcher.Constraint("Vertical", 6),
    Sketcher.Constraint("Horizontal", 7),
    Sketcher.Constraint("Vertical", 8),
    Sketcher.Constraint("Horizontal", 9),
    Sketcher.Constraint("Vertical", 10),
    Sketcher.Constraint("Horizontal", 11),
    Sketcher.Constraint("Vertical", 12),
    Sketcher.Constraint("Horizontal", 13),
    Sketcher.Constraint("Vertical", 14),
    Sketcher.Constraint("Horizontal", 15),
    Sketcher.Constraint("Vertical", 16),
    Sketcher.Constraint("Horizontal", 17),
    Sketcher.Constraint("Vertical", 18),
    Sketcher.Constraint("Horizontal", 19),
    Sketcher.Constraint("Vertical", 20),
    Sketcher.Constraint("Horizontal", 21),
    Sketcher.Constraint("Vertical", 22),
    Sketcher.Constraint("Horizontal", 23),
    Sketcher.Constraint("Symmetric", 11, 2, 12, 2, -1),
    Sketcher.Constraint("Symmetric", 9, 2, 14, 2, -1),
    Sketcher.Constraint("Symmetric", 7, 2, 16, 2, -1),
    Sketcher.Constraint("Symmetric", 5, 2, 18, 2, -1),
    Sketcher.Constraint("Symmetric", 3, 2, 20, 2, -1),
    Sketcher.Constraint("Symmetric", 1, 2, 22, 2, -1),
    Sketcher.Constraint("Horizontal", 1, 2, 4, 2),
    Sketcher.Constraint("Horizontal", 3, 2, 6, 2),
    Sketcher.Constraint("Horizontal", 5, 2, 8, 2),
    Sketcher.Constraint("Horizontal", 7, 2, 10, 2),
    Sketcher.Constraint("Equal", 3, 5),
    Sketcher.Constraint("Equal", 7, 9),
    Sketcher.Constraint("DistanceX", 1, 1, 1, 2, 10.0),
    Sketcher.Constraint("DistanceY", 0, 1, 0, 2, 2.5),
    Sketcher.Constraint("DistanceX", -1, 1, 0, 2, 7.0),
    Sketcher.Constraint("DistanceY", 2, 2, -1, 1, 40.0),
    Sketcher.Constraint("DistanceX", -1, 1, 4, 2, 31.0),
    Sketcher.Constraint("DistanceX", -1, 1, 8, 2, 55.0),
])
pad5 = body.newObject("PartDesign::Pad", "Pad004")
pad5.Profile = sketch9
pad5.Length = 10
pad5.Reversed = True

sketch10 = body.newObject("Sketcher::SketchObject", "Sketch009")
sketch10.AttachmentSupport = (doc.getObject("XZ_Plane"), [""])
sketch10.MapMode = "FlatFace"
sketch10.addGeometry([
    Part.LineSegment(V(0, 40, 0), V(0, 80, 0)),
    Part.LineSegment(V(0, 80, 0), V(50, 80, 0)),
    Part.LineSegment(V(50, 80, 0), V(50, 40, 0)),
    Part.LineSegment(V(50, 40, 0), V(0, 40, 0)),
], False)
sketch10.addConstraint([
    Sketcher.Constraint("Coincident", 0, 2, 1, 1),
    Sketcher.Constraint("Coincident", 1, 2, 2, 1),
    Sketcher.Constraint("Coincident", 2, 2, 3, 1),
    Sketcher.Constraint("Coincident", 3, 2, 0, 1),
    Sketcher.Constraint("Vertical", 0),
    Sketcher.Constraint("Horizontal", 1),
    Sketcher.Constraint("Vertical", 2),
    Sketcher.Constraint("Horizontal", 3),
    Sketcher.Constraint("PointOnObject", 0, 2, -2),
    Sketcher.Constraint("DistanceX", 1, 1, 1, 2, 50.0),
    Sketcher.Constraint("DistanceY", 0, 1, 0, 2, 40.0),
    Sketcher.Constraint("DistanceY", -1, 1, 0, 2, 80.0),
])
pad6 = body.newObject("PartDesign::Pad", "Pad005")
pad6.Profile = sketch10
pad6.Length = 3
pad6.Reversed = True

sketch11 = body.newObject("Sketcher::SketchObject", "Sketch010")
sketch11.AttachmentSupport = (doc.getObject("XZ_Plane"), [""])
sketch11.MapMode = "FlatFace"
sketch11.AttachmentOffset = App.Placement(V(0, 0, -3), App.Rotation())
sketch11.addGeometry([
    Part.LineSegment(V(0, 40, 0), V(0, 80, 0)),
    Part.LineSegment(V(0, 80, 0), V(50, 80, 0)),
    Part.LineSegment(V(50, 80, 0), V(50, 40, 0)),
    Part.LineSegment(V(50, 40, 0), V(48, 40, 0)),
    Part.LineSegment(V(48, 40, 0), V(48, 78, 0)),
    Part.LineSegment(V(48, 78, 0), V(2, 78, 0)),
    Part.LineSegment(V(2, 78, 0), V(2, 40, 0)),
    Part.LineSegment(V(2, 40, 0), V(0, 40, 0)),
], False)
sketch11.addConstraint([
    Sketcher.Constraint("Coincident", 0, 2, 1, 1),
    Sketcher.Constraint("Coincident", 1, 2, 2, 1),
    Sketcher.Constraint("Coincident", 2, 2, 3, 1),
    Sketcher.Constraint("Coincident", 3, 2, 4, 1),
    Sketcher.Constraint("Coincident", 4, 2, 5, 1),
    Sketcher.Constraint("Coincident", 5, 2, 6, 1),
    Sketcher.Constraint("Coincident", 6, 2, 7, 1),
    Sketcher.Constraint("Coincident", 7, 2, 0, 1),
    Sketcher.Constraint("Vertical", 0),
    Sketcher.Constraint("Horizontal", 1),
    Sketcher.Constraint("Vertical", 2),
    Sketcher.Constraint("Horizontal", 3),
    Sketcher.Constraint("Vertical", 4),
    Sketcher.Constraint("Horizontal", 5),
    Sketcher.Constraint("Vertical", 6),
    Sketcher.Constraint("Horizontal", 7),
    Sketcher.Constraint("PointOnObject", 0, 2, -2),
    Sketcher.Constraint("Horizontal", 3, 2, 6, 2),
    Sketcher.Constraint("Equal", 3, 7),
    Sketcher.Constraint("DistanceX", 1, 1, 1, 2, 50.0),
    Sketcher.Constraint("DistanceX", 3, 2, 3, 1, 2.0),
    Sketcher.Constraint("DistanceY", 0, 1, 0, 2, 40.0),
    Sketcher.Constraint("DistanceY", 4, 1, 4, 2, 38.0),
    Sketcher.Constraint("DistanceY", -1, 1, 0, 2, 80.0),
])
pad7 = body.newObject("PartDesign::Pad", "Pad006")
pad7.Profile = sketch11
pad7.Length = 10
pad7.Reversed = True

sketch12 = body.newObject("Sketcher::SketchObject", "Sketch011")
sketch12.AttachmentSupport = (doc.getObject("YZ_Plane"), [""])
sketch12.MapMode = "FlatFace"
sketch12.addGeometry(Part.Circle(V(6, 45, 0), V(0, 0, 1), 3), False)
sketch12.addConstraint([
    Sketcher.Constraint("Diameter", 0, 6.0),
    Sketcher.Constraint("DistanceX", -1, 1, 0, 3, 6.0),
    Sketcher.Constraint("DistanceY", -1, 1, 0, 3, 45.0),
])
pocket5 = body.newObject("PartDesign::Pocket", "Pocket004")
pocket5.Profile = sketch12
pocket5.Length = 50
pocket5.Reversed = True

sketch13 = body.newObject("Sketcher::SketchObject", "Sketch012")
sketch13.AttachmentSupport = (doc.getObject("XZ_Plane"), [""])
sketch13.MapMode = "FlatFace"
sketch13.AttachmentOffset = App.Placement(V(0, 0, -13), App.Rotation())
sketch13.addGeometry([
    Part.LineSegment(V(0, 78, 0), V(0, 80, 0)),
    Part.LineSegment(V(0, 80, 0), V(50, 80, 0)),
    Part.LineSegment(V(50, 80, 0), V(50, 78, 0)),
    Part.LineSegment(V(50, 78, 0), V(0, 78, 0)),
], False)
sketch13.addConstraint([
    Sketcher.Constraint("Coincident", 0, 2, 1, 1),
    Sketcher.Constraint("Coincident", 1, 2, 2, 1),
    Sketcher.Constraint("Coincident", 2, 2, 3, 1),
    Sketcher.Constraint("Coincident", 3, 2, 0, 1),
    Sketcher.Constraint("Vertical", 0),
    Sketcher.Constraint("Horizontal", 1),
    Sketcher.Constraint("Vertical", 2),
    Sketcher.Constraint("Horizontal", 3),
    Sketcher.Constraint("PointOnObject", 0, 2, -2),
    Sketcher.Constraint("DistanceX", 1, 1, 1, 2, 50.0),
    Sketcher.Constraint("DistanceY", 0, 1, 0, 2, 2.0),
    Sketcher.Constraint("DistanceY", -1, 1, 0, 2, 80.0),
])
pad8 = body.newObject("PartDesign::Pad", "Pad007")
pad8.Profile = sketch13
pad8.Length = 12
pad8.Reversed = True

sketch14 = body.newObject("Sketcher::SketchObject", "Sketch013")
sketch14.AttachmentSupport = (doc.getObject("XY_Plane"), [""])
sketch14.MapMode = "FlatFace"
sketch14.AttachmentOffset = App.Placement(V(0, 0, 80), App.Rotation())
sketch14.addGeometry([
    Part.Circle(V(8.3, 19, 0), V(0, 0, 1), 4.5),
    Part.Circle(V(25, 19, 0), V(0, 0, 1), 4.5),
    Part.Circle(V(41.7, 19, 0), V(0, 0, 1), 4.5),
], False)
sketch14.addConstraint([
    Sketcher.Constraint("Equal", 0, 1),
    Sketcher.Constraint("Equal", 1, 2),
    Sketcher.Constraint("Horizontal", 0, 3, 1, 3),
    Sketcher.Constraint("Horizontal", 1, 3, 2, 3),
    Sketcher.Constraint("Diameter", 0, 9.0),
    Sketcher.Constraint("DistanceY", -1, 1, 0, 3, 19.0),
    Sketcher.Constraint("DistanceX", -1, 1, 1, 3, 25.0),
    Sketcher.Constraint("DistanceX", -1, 1, 0, 3, 8.333333),
    Sketcher.Constraint("DistanceX", -1, 1, 2, 3, 41.666667),
])
pocket6 = body.newObject("PartDesign::Pocket", "Pocket005")
pocket6.Profile = sketch14
pocket6.Length = 2

doc.recompute()
